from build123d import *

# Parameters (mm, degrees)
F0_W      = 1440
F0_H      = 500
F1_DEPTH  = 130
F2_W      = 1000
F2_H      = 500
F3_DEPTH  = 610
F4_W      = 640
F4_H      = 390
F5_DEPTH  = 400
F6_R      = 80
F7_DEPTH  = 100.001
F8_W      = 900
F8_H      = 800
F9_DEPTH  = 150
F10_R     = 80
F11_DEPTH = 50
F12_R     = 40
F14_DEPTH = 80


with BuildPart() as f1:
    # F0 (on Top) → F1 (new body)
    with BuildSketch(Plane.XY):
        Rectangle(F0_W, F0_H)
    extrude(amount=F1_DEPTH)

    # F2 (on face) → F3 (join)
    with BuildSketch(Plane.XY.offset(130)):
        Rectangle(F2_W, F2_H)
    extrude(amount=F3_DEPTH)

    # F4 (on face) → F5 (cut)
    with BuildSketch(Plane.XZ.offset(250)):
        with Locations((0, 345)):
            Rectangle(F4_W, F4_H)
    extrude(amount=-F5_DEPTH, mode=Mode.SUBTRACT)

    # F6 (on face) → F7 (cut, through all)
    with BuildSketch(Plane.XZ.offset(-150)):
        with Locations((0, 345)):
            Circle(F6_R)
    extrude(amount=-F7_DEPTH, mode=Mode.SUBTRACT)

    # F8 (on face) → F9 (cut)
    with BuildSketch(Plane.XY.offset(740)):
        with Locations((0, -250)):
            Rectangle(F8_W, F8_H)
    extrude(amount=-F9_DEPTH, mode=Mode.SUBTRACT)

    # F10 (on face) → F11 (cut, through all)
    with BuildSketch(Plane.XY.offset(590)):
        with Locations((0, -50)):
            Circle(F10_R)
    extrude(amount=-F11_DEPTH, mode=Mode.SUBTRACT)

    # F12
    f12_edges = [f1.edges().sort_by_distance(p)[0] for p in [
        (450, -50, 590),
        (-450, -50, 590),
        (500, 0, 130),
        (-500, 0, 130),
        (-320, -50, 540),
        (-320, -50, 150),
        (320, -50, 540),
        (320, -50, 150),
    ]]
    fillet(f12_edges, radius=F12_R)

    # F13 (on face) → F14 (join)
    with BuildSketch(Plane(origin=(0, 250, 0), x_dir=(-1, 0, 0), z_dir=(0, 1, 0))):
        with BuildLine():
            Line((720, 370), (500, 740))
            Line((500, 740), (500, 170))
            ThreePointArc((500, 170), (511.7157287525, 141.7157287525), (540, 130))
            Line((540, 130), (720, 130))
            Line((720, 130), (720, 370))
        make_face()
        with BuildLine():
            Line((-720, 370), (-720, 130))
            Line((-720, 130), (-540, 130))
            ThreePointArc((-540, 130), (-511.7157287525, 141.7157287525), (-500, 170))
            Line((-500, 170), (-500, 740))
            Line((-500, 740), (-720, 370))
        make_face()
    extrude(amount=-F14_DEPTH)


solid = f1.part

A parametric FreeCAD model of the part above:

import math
import FreeCAD as App
import Part
import Sketcher

V = App.Vector


def edges_at(feature, points):
    """Names of the edges that pass closest to the given points."""
    edges = feature.Shape.Edges
    near = lambda p: min(range(len(edges)), key=lambda i: edges[i].distToShape(Part.Vertex(*p))[0])
    return sorted({f"Edge{near(p) + 1}" for p in points})

doc = App.newDocument("Part")
params = doc.addObject("Spreadsheet::Sheet", "Params")
for row, (alias, value) in enumerate([
    ("sketch1_width", "1440 mm"),
    ("sketch1_height", "500 mm"),
    ("pad1_length", "130 mm"),
    ("sketch2_width", "1000 mm"),
    ("sketch2_height", "500 mm"),
    ("pad2_length", "610 mm"),
    ("sketch3_width", "640 mm"),
    ("sketch3_height", "390 mm"),
    ("pocket1_length", "400 mm"),
    ("sketch4_diameter", "160 mm"),
    ("sketch5_width", "900 mm"),
    ("sketch5_height", "800 mm"),
    ("pocket3_length", "150 mm"),
    ("sketch6_diameter", "160 mm"),
    ("pocket4_length", "50 mm"),
    ("fillet_radius", "40 mm"),
    ("sketch7_radius", "40 mm"),
    ("sketch7_width", "180 mm"),
    ("sketch7_height", "570 mm"),
    ("sketch7_height2", "240 mm"),
    ("pad3_length", "80 mm"),
], start=1):
    params.set(f"A{row}", alias)
    params.set(f"B{row}", "=" + value)
    params.setAlias(f"B{row}", alias)

body = doc.addObject("PartDesign::Body", "Body")

sketch1 = body.newObject("Sketcher::SketchObject", "Sketch")
sketch1.AttachmentSupport = (doc.getObject("XY_Plane"), [""])
sketch1.MapMode = "FlatFace"
sketch1.addGeometry(Part.LineSegment(V(-720, 250, 0), V(-720, -250, 0)), False)
sketch1.addGeometry(Part.LineSegment(V(-720, -250, 0), V(720, -250, 0)), False)
sketch1.addGeometry(Part.LineSegment(V(720, -250, 0), V(720, 250, 0)), False)
sketch1.addGeometry(Part.LineSegment(V(720, 250, 0), V(-720, 250, 0)), False)
sketch1.addConstraint(Sketcher.Constraint("Coincident", 0, 2, 1, 1))
sketch1.addConstraint(Sketcher.Constraint("Coincident", 1, 2, 2, 1))
sketch1.addConstraint(Sketcher.Constraint("Coincident", 2, 2, 3, 1))
sketch1.addConstraint(Sketcher.Constraint("Coincident", 3, 2, 0, 1))
sketch1.addConstraint(Sketcher.Constraint("Vertical", 0))
sketch1.addConstraint(Sketcher.Constraint("Horizontal", 1))
sketch1.addConstraint(Sketcher.Constraint("Vertical", 2))
sketch1.addConstraint(Sketcher.Constraint("Horizontal", 3))
sketch1.addConstraint(Sketcher.Constraint("Symmetric", 0, 2, 2, 2, -1, 1))
sketch1.addConstraint(Sketcher.Constraint("DistanceX", 1, 1, 1, 2, 1440.0))
sketch1.addConstraint(Sketcher.Constraint("DistanceY", 0, 2, 0, 1, 500.0))
sketch1.setExpression("Constraints[9]", "Params.sketch1_width")
sketch1.setExpression("Constraints[10]", "Params.sketch1_height")
pad1 = body.newObject("PartDesign::Pad", "Pad")
pad1.Profile = sketch1
pad1.setExpression("Length", "Params.pad1_length")

sketch2 = body.newObject("Sketcher::SketchObject", "Sketch001")
sketch2.AttachmentSupport = (doc.getObject("XY_Plane"), [""])
sketch2.MapMode = "FlatFace"
sketch2.AttachmentOffset = App.Placement(V(0, 0, 130), App.Rotation())
sketch2.addGeometry(Part.LineSegment(V(-500, 250, 0), V(-500, -250, 0)), False)
sketch2.addGeometry(Part.LineSegment(V(-500, -250, 0), V(500, -250, 0)), False)
sketch2.addGeometry(Part.LineSegment(V(500, -250, 0), V(500, 250, 0)), False)
sketch2.addGeometry(Part.LineSegment(V(500, 250, 0), V(-500, 250, 0)), False)
sketch2.addConstraint(Sketcher.Constraint("Coincident", 0, 2, 1, 1))
sketch2.addConstraint(Sketcher.Constraint("Coincident", 1, 2, 2, 1))
sketch2.addConstraint(Sketcher.Constraint("Coincident", 2, 2, 3, 1))
sketch2.addConstraint(Sketcher.Constraint("Coincident", 3, 2, 0, 1))
sketch2.addConstraint(Sketcher.Constraint("Vertical", 0))
sketch2.addConstraint(Sketcher.Constraint("Horizontal", 1))
sketch2.addConstraint(Sketcher.Constraint("Vertical", 2))
sketch2.addConstraint(Sketcher.Constraint("Horizontal", 3))
sketch2.addConstraint(Sketcher.Constraint("Symmetric", 0, 2, 2, 2, -1, 1))
sketch2.addConstraint(Sketcher.Constraint("DistanceX", 1, 1, 1, 2, 1000.0))
sketch2.addConstraint(Sketcher.Constraint("DistanceY", 0, 2, 0, 1, 500.0))
sketch2.setExpression("Constraints[9]", "Params.sketch2_width")
sketch2.setExpression("Constraints[10]", "Params.sketch2_height")
pad2 = body.newObject("PartDesign::Pad", "Pad001")
pad2.Profile = sketch2
pad2.setExpression("Length", "Params.pad2_length")

sketch3 = body.newObject("Sketcher::SketchObject", "Sketch002")
sketch3.AttachmentSupport = (doc.getObject("XZ_Plane"), [""])
sketch3.MapMode = "FlatFace"
sketch3.AttachmentOffset = App.Placement(V(0, 0, 250), App.Rotation())
sketch3.addGeometry(Part.LineSegment(V(-320, 540, 0), V(-320, 150, 0)), False)
sketch3.addGeometry(Part.LineSegment(V(-320, 150, 0), V(320, 150, 0)), False)
sketch3.addGeometry(Part.LineSegment(V(320, 150, 0), V(320, 540, 0)), False)
sketch3.addGeometry(Part.LineSegment(V(320, 540, 0), V(-320, 540, 0)), False)
sketch3.addConstraint(Sketcher.Constraint("Coincident", 0, 2, 1, 1))
sketch3.addConstraint(Sketcher.Constraint("Coincident", 1, 2, 2, 1))
sketch3.addConstraint(Sketcher.Constraint("Coincident", 2, 2, 3, 1))
sketch3.addConstraint(Sketcher.Constraint("Coincident", 3, 2, 0, 1))
sketch3.addConstraint(Sketcher.Constraint("Vertical", 0))
sketch3.addConstraint(Sketcher.Constraint("Horizontal", 1))
sketch3.addConstraint(Sketcher.Constraint("Vertical", 2))
sketch3.addConstraint(Sketcher.Constraint("Horizontal", 3))
sketch3.addConstraint(Sketcher.Constraint("DistanceX", 1, 1, 1, 2, 640.0))
sketch3.addConstraint(Sketcher.Constraint("DistanceY", 0, 2, 0, 1, 390.0))
sketch3.addConstraint(Sketcher.Constraint("DistanceX", 0, 2, -1, 1, 320.0))
sketch3.addConstraint(Sketcher.Constraint("DistanceY", -1, 1, 0, 2, 150.0))
sketch3.setExpression("Constraints[8]", "Params.sketch3_width")
sketch3.setExpression("Constraints[9]", "Params.sketch3_height")
pocket1 = body.newObject("PartDesign::Pocket", "Pocket")
pocket1.Profile = sketch3
pocket1.setExpression("Length", "Params.pocket1_length")

sketch4 = body.newObject("Sketcher::SketchObject", "Sketch003")
sketch4.AttachmentSupport = (doc.getObject("XZ_Plane"), [""])
sketch4.MapMode = "FlatFace"
sketch4.AttachmentOffset = App.Placement(V(0, 0, -150), App.Rotation())
sketch4.addGeometry(Part.Circle(V(0, 345, 0), V(0, 0, 1), 80), False)
sketch4.addConstraint(Sketcher.Constraint("PointOnObject", 0, 3, -2))
sketch4.addConstraint(Sketcher.Constraint("Diameter", 0, 160.0))
sketch4.addConstraint(Sketcher.Constraint("DistanceY", -1, 1, 0, 3, 345.0))
sketch4.setExpression("Constraints[1]", "Params.sketch4_diameter")
pocket2 = body.newObject("PartDesign::Pocket", "Pocket001")
pocket2.Profile = sketch4
pocket2.Type = "ThroughAll"

sketch5 = body.newObject("Sketcher::SketchObject", "Sketch004")
sketch5.AttachmentSupport = (doc.getObject("XY_Plane"), [""])
sketch5.MapMode = "FlatFace"
sketch5.AttachmentOffset = App.Placement(V(0, 0, 740), App.Rotation())
sketch5.addGeometry(Part.LineSegment(V(-450, 150, 0), V(-450, -650, 0)), False)
sketch5.addGeometry(Part.LineSegment(V(-450, -650, 0), V(450, -650, 0)), False)
sketch5.addGeometry(Part.LineSegment(V(450, -650, 0), V(450, 150, 0)), False)
sketch5.addGeometry(Part.LineSegment(V(450, 150, 0), V(-450, 150, 0)), False)
sketch5.addConstraint(Sketcher.Constraint("Coincident", 0, 2, 1, 1))
sketch5.addConstraint(Sketcher.Constraint("Coincident", 1, 2, 2, 1))
sketch5.addConstraint(Sketcher.Constraint("Coincident", 2, 2, 3, 1))
sketch5.addConstraint(Sketcher.Constraint("Coincident", 3, 2, 0, 1))
sketch5.addConstraint(Sketcher.Constraint("Vertical", 0))
sketch5.addConstraint(Sketcher.Constraint("Horizontal", 1))
sketch5.addConstraint(Sketcher.Constraint("Vertical", 2))
sketch5.addConstraint(Sketcher.Constraint("Horizontal", 3))
sketch5.addConstraint(Sketcher.Constraint("DistanceX", 1, 1, 1, 2, 900.0))
sketch5.addConstraint(Sketcher.Constraint("DistanceY", 0, 2, 0, 1, 800.0))
sketch5.addConstraint(Sketcher.Constraint("DistanceX", 0, 2, -1, 1, 450.0))
sketch5.addConstraint(Sketcher.Constraint("DistanceY", 0, 2, -1, 1, 650.0))
sketch5.setExpression("Constraints[8]", "Params.sketch5_width")
sketch5.setExpression("Constraints[9]", "Params.sketch5_height")
pocket3 = body.newObject("PartDesign::Pocket", "Pocket002")
pocket3.Profile = sketch5
pocket3.setExpression("Length", "Params.pocket3_length")

sketch6 = body.newObject("Sketcher::SketchObject", "Sketch005")
sketch6.AttachmentSupport = (doc.getObject("XY_Plane"), [""])
sketch6.MapMode = "FlatFace"
sketch6.AttachmentOffset = App.Placement(V(0, 0, 590), App.Rotation())
sketch6.addGeometry(Part.Circle(V(0, -50, 0), V(0, 0, 1), 80), False)
sketch6.addConstraint(Sketcher.Constraint("PointOnObject", 0, 3, -2))
sketch6.addConstraint(Sketcher.Constraint("Diameter", 0, 160.0))
sketch6.addConstraint(Sketcher.Constraint("DistanceY", 0, 3, -1, 1, 50.0))
sketch6.setExpression("Constraints[1]", "Params.sketch6_diameter")
pocket4 = body.newObject("PartDesign::Pocket", "Pocket003")
pocket4.Profile = sketch6
pocket4.setExpression("Length", "Params.pocket4_length")
doc.recompute()

fillet = body.newObject("PartDesign::Fillet", "Fillet")
fillet.Base = (pocket4, edges_at(pocket4, [
    (450, -50, 590),
    (-450, -50, 590),
    (500, 0, 130),
    (-500, 0, 130),
    (-320, -50, 540),
    (-320, -50, 150),
    (320, -50, 540),
    (320, -50, 150),
]))
fillet.setExpression("Radius", "Params.fillet_radius")

sketch7 = body.newObject("Sketcher::SketchObject", "Sketch006")
sketch7.AttachmentSupport = (doc.getObject("XZ_Plane"), [""])
sketch7.MapMode = "FlatFace"
sketch7.AttachmentOffset = App.Placement(V(0, 0, -250), App.Rotation())
sketch7.addGeometry(Part.LineSegment(V(-720, 370, 0), V(-500, 740, 0)), False)
sketch7.addGeometry(Part.LineSegment(V(-500, 740, 0), V(-500, 170, 0)), False)
sketch7.addGeometry(Part.ArcOfCircle(Part.Circle(V(-540, 170, 0), V(0, 0, 1), 40), math.radians(-90), math.radians(0)), False)
sketch7.addGeometry(Part.LineSegment(V(-540, 130, 0), V(-720, 130, 0)), False)
sketch7.addGeometry(Part.LineSegment(V(-720, 130, 0), V(-720, 370, 0)), False)
sketch7.addGeometry(Part.LineSegment(V(720, 370, 0), V(720, 130, 0)), False)
sketch7.addGeometry(Part.LineSegment(V(720, 130, 0), V(540, 130, 0)), False)
sketch7.addGeometry(Part.ArcOfCircle(Part.Circle(V(540, 170, 0), V(0, 0, 1), 40), math.radians(180), math.radians(270)), False)
sketch7.addGeometry(Part.LineSegment(V(500, 170, 0), V(500, 740, 0)), False)
sketch7.addGeometry(Part.LineSegment(V(500, 740, 0), V(720, 370, 0)), False)
sketch7.addConstraint(Sketcher.Constraint("Coincident", 0, 2, 1, 1))
sketch7.addConstraint(Sketcher.Constraint("Tangent", 1, 2, 2, 2))
sketch7.addConstraint(Sketcher.Constraint("Tangent", 2, 1, 3, 1))
sketch7.addConstraint(Sketcher.Constraint("Coincident", 3, 2, 4, 1))
sketch7.addConstraint(Sketcher.Constraint("Coincident", 4, 2, 0, 1))
sketch7.addConstraint(Sketcher.Constraint("Coincident", 5, 2, 6, 1))
sketch7.addConstraint(Sketcher.Constraint("Tangent", 6, 2, 7, 2))
sketch7.addConstraint(Sketcher.Constraint("Tangent", 7, 1, 8, 1))
sketch7.addConstraint(Sketcher.Constraint("Coincident", 8, 2, 9, 1))
sketch7.addConstraint(Sketcher.Constraint("Coincident", 9, 2, 5, 1))
sketch7.addConstraint(Sketcher.Constraint("Vertical", 1))
sketch7.addConstraint(Sketcher.Constraint("Horizontal", 3))
sketch7.addConstraint(Sketcher.Constraint("Vertical", 4))
sketch7.addConstraint(Sketcher.Constraint("Vertical", 5))
sketch7.addConstraint(Sketcher.Constraint("Horizontal", 6))
sketch7.addConstraint(Sketcher.Constraint("Vertical", 8))
sketch7.addConstraint(Sketcher.Constraint("Equal", 2, 7))
sketch7.addConstraint(Sketcher.Constraint("Symmetric", 2, 3, 7, 3, -2))
sketch7.addConstraint(Sketcher.Constraint("Symmetric", 4, 2, 9, 2, -2))
sketch7.addConstraint(Sketcher.Constraint("Horizontal", 0, 2, 8, 2))
sketch7.addConstraint(Sketcher.Constraint("Radius", 2, 40.0))
sketch7.addConstraint(Sketcher.Constraint("DistanceX", 3, 2, 3, 1, 180.0))
sketch7.addConstraint(Sketcher.Constraint("DistanceY", 1, 2, 1, 1, 570.0))
sketch7.addConstraint(Sketcher.Constraint("DistanceY", 4, 1, 4, 2, 240.0))
sketch7.addConstraint(Sketcher.Constraint("DistanceX", 2, 3, -1, 1, 540.0))
sketch7.addConstraint(Sketcher.Constraint("DistanceY", -1, 1, 2, 3, 170.0))
sketch7.setExpression("Constraints[20]", "Params.sketch7_radius")
sketch7.setExpression("Constraints[21]", "Params.sketch7_width")
sketch7.setExpression("Constraints[22]", "Params.sketch7_height")
sketch7.setExpression("Constraints[23]", "Params.sketch7_height2")
pad3 = body.newObject("PartDesign::Pad", "Pad002")
pad3.Profile = sketch7
pad3.setExpression("Length", "Params.pad3_length")

doc.recompute()
